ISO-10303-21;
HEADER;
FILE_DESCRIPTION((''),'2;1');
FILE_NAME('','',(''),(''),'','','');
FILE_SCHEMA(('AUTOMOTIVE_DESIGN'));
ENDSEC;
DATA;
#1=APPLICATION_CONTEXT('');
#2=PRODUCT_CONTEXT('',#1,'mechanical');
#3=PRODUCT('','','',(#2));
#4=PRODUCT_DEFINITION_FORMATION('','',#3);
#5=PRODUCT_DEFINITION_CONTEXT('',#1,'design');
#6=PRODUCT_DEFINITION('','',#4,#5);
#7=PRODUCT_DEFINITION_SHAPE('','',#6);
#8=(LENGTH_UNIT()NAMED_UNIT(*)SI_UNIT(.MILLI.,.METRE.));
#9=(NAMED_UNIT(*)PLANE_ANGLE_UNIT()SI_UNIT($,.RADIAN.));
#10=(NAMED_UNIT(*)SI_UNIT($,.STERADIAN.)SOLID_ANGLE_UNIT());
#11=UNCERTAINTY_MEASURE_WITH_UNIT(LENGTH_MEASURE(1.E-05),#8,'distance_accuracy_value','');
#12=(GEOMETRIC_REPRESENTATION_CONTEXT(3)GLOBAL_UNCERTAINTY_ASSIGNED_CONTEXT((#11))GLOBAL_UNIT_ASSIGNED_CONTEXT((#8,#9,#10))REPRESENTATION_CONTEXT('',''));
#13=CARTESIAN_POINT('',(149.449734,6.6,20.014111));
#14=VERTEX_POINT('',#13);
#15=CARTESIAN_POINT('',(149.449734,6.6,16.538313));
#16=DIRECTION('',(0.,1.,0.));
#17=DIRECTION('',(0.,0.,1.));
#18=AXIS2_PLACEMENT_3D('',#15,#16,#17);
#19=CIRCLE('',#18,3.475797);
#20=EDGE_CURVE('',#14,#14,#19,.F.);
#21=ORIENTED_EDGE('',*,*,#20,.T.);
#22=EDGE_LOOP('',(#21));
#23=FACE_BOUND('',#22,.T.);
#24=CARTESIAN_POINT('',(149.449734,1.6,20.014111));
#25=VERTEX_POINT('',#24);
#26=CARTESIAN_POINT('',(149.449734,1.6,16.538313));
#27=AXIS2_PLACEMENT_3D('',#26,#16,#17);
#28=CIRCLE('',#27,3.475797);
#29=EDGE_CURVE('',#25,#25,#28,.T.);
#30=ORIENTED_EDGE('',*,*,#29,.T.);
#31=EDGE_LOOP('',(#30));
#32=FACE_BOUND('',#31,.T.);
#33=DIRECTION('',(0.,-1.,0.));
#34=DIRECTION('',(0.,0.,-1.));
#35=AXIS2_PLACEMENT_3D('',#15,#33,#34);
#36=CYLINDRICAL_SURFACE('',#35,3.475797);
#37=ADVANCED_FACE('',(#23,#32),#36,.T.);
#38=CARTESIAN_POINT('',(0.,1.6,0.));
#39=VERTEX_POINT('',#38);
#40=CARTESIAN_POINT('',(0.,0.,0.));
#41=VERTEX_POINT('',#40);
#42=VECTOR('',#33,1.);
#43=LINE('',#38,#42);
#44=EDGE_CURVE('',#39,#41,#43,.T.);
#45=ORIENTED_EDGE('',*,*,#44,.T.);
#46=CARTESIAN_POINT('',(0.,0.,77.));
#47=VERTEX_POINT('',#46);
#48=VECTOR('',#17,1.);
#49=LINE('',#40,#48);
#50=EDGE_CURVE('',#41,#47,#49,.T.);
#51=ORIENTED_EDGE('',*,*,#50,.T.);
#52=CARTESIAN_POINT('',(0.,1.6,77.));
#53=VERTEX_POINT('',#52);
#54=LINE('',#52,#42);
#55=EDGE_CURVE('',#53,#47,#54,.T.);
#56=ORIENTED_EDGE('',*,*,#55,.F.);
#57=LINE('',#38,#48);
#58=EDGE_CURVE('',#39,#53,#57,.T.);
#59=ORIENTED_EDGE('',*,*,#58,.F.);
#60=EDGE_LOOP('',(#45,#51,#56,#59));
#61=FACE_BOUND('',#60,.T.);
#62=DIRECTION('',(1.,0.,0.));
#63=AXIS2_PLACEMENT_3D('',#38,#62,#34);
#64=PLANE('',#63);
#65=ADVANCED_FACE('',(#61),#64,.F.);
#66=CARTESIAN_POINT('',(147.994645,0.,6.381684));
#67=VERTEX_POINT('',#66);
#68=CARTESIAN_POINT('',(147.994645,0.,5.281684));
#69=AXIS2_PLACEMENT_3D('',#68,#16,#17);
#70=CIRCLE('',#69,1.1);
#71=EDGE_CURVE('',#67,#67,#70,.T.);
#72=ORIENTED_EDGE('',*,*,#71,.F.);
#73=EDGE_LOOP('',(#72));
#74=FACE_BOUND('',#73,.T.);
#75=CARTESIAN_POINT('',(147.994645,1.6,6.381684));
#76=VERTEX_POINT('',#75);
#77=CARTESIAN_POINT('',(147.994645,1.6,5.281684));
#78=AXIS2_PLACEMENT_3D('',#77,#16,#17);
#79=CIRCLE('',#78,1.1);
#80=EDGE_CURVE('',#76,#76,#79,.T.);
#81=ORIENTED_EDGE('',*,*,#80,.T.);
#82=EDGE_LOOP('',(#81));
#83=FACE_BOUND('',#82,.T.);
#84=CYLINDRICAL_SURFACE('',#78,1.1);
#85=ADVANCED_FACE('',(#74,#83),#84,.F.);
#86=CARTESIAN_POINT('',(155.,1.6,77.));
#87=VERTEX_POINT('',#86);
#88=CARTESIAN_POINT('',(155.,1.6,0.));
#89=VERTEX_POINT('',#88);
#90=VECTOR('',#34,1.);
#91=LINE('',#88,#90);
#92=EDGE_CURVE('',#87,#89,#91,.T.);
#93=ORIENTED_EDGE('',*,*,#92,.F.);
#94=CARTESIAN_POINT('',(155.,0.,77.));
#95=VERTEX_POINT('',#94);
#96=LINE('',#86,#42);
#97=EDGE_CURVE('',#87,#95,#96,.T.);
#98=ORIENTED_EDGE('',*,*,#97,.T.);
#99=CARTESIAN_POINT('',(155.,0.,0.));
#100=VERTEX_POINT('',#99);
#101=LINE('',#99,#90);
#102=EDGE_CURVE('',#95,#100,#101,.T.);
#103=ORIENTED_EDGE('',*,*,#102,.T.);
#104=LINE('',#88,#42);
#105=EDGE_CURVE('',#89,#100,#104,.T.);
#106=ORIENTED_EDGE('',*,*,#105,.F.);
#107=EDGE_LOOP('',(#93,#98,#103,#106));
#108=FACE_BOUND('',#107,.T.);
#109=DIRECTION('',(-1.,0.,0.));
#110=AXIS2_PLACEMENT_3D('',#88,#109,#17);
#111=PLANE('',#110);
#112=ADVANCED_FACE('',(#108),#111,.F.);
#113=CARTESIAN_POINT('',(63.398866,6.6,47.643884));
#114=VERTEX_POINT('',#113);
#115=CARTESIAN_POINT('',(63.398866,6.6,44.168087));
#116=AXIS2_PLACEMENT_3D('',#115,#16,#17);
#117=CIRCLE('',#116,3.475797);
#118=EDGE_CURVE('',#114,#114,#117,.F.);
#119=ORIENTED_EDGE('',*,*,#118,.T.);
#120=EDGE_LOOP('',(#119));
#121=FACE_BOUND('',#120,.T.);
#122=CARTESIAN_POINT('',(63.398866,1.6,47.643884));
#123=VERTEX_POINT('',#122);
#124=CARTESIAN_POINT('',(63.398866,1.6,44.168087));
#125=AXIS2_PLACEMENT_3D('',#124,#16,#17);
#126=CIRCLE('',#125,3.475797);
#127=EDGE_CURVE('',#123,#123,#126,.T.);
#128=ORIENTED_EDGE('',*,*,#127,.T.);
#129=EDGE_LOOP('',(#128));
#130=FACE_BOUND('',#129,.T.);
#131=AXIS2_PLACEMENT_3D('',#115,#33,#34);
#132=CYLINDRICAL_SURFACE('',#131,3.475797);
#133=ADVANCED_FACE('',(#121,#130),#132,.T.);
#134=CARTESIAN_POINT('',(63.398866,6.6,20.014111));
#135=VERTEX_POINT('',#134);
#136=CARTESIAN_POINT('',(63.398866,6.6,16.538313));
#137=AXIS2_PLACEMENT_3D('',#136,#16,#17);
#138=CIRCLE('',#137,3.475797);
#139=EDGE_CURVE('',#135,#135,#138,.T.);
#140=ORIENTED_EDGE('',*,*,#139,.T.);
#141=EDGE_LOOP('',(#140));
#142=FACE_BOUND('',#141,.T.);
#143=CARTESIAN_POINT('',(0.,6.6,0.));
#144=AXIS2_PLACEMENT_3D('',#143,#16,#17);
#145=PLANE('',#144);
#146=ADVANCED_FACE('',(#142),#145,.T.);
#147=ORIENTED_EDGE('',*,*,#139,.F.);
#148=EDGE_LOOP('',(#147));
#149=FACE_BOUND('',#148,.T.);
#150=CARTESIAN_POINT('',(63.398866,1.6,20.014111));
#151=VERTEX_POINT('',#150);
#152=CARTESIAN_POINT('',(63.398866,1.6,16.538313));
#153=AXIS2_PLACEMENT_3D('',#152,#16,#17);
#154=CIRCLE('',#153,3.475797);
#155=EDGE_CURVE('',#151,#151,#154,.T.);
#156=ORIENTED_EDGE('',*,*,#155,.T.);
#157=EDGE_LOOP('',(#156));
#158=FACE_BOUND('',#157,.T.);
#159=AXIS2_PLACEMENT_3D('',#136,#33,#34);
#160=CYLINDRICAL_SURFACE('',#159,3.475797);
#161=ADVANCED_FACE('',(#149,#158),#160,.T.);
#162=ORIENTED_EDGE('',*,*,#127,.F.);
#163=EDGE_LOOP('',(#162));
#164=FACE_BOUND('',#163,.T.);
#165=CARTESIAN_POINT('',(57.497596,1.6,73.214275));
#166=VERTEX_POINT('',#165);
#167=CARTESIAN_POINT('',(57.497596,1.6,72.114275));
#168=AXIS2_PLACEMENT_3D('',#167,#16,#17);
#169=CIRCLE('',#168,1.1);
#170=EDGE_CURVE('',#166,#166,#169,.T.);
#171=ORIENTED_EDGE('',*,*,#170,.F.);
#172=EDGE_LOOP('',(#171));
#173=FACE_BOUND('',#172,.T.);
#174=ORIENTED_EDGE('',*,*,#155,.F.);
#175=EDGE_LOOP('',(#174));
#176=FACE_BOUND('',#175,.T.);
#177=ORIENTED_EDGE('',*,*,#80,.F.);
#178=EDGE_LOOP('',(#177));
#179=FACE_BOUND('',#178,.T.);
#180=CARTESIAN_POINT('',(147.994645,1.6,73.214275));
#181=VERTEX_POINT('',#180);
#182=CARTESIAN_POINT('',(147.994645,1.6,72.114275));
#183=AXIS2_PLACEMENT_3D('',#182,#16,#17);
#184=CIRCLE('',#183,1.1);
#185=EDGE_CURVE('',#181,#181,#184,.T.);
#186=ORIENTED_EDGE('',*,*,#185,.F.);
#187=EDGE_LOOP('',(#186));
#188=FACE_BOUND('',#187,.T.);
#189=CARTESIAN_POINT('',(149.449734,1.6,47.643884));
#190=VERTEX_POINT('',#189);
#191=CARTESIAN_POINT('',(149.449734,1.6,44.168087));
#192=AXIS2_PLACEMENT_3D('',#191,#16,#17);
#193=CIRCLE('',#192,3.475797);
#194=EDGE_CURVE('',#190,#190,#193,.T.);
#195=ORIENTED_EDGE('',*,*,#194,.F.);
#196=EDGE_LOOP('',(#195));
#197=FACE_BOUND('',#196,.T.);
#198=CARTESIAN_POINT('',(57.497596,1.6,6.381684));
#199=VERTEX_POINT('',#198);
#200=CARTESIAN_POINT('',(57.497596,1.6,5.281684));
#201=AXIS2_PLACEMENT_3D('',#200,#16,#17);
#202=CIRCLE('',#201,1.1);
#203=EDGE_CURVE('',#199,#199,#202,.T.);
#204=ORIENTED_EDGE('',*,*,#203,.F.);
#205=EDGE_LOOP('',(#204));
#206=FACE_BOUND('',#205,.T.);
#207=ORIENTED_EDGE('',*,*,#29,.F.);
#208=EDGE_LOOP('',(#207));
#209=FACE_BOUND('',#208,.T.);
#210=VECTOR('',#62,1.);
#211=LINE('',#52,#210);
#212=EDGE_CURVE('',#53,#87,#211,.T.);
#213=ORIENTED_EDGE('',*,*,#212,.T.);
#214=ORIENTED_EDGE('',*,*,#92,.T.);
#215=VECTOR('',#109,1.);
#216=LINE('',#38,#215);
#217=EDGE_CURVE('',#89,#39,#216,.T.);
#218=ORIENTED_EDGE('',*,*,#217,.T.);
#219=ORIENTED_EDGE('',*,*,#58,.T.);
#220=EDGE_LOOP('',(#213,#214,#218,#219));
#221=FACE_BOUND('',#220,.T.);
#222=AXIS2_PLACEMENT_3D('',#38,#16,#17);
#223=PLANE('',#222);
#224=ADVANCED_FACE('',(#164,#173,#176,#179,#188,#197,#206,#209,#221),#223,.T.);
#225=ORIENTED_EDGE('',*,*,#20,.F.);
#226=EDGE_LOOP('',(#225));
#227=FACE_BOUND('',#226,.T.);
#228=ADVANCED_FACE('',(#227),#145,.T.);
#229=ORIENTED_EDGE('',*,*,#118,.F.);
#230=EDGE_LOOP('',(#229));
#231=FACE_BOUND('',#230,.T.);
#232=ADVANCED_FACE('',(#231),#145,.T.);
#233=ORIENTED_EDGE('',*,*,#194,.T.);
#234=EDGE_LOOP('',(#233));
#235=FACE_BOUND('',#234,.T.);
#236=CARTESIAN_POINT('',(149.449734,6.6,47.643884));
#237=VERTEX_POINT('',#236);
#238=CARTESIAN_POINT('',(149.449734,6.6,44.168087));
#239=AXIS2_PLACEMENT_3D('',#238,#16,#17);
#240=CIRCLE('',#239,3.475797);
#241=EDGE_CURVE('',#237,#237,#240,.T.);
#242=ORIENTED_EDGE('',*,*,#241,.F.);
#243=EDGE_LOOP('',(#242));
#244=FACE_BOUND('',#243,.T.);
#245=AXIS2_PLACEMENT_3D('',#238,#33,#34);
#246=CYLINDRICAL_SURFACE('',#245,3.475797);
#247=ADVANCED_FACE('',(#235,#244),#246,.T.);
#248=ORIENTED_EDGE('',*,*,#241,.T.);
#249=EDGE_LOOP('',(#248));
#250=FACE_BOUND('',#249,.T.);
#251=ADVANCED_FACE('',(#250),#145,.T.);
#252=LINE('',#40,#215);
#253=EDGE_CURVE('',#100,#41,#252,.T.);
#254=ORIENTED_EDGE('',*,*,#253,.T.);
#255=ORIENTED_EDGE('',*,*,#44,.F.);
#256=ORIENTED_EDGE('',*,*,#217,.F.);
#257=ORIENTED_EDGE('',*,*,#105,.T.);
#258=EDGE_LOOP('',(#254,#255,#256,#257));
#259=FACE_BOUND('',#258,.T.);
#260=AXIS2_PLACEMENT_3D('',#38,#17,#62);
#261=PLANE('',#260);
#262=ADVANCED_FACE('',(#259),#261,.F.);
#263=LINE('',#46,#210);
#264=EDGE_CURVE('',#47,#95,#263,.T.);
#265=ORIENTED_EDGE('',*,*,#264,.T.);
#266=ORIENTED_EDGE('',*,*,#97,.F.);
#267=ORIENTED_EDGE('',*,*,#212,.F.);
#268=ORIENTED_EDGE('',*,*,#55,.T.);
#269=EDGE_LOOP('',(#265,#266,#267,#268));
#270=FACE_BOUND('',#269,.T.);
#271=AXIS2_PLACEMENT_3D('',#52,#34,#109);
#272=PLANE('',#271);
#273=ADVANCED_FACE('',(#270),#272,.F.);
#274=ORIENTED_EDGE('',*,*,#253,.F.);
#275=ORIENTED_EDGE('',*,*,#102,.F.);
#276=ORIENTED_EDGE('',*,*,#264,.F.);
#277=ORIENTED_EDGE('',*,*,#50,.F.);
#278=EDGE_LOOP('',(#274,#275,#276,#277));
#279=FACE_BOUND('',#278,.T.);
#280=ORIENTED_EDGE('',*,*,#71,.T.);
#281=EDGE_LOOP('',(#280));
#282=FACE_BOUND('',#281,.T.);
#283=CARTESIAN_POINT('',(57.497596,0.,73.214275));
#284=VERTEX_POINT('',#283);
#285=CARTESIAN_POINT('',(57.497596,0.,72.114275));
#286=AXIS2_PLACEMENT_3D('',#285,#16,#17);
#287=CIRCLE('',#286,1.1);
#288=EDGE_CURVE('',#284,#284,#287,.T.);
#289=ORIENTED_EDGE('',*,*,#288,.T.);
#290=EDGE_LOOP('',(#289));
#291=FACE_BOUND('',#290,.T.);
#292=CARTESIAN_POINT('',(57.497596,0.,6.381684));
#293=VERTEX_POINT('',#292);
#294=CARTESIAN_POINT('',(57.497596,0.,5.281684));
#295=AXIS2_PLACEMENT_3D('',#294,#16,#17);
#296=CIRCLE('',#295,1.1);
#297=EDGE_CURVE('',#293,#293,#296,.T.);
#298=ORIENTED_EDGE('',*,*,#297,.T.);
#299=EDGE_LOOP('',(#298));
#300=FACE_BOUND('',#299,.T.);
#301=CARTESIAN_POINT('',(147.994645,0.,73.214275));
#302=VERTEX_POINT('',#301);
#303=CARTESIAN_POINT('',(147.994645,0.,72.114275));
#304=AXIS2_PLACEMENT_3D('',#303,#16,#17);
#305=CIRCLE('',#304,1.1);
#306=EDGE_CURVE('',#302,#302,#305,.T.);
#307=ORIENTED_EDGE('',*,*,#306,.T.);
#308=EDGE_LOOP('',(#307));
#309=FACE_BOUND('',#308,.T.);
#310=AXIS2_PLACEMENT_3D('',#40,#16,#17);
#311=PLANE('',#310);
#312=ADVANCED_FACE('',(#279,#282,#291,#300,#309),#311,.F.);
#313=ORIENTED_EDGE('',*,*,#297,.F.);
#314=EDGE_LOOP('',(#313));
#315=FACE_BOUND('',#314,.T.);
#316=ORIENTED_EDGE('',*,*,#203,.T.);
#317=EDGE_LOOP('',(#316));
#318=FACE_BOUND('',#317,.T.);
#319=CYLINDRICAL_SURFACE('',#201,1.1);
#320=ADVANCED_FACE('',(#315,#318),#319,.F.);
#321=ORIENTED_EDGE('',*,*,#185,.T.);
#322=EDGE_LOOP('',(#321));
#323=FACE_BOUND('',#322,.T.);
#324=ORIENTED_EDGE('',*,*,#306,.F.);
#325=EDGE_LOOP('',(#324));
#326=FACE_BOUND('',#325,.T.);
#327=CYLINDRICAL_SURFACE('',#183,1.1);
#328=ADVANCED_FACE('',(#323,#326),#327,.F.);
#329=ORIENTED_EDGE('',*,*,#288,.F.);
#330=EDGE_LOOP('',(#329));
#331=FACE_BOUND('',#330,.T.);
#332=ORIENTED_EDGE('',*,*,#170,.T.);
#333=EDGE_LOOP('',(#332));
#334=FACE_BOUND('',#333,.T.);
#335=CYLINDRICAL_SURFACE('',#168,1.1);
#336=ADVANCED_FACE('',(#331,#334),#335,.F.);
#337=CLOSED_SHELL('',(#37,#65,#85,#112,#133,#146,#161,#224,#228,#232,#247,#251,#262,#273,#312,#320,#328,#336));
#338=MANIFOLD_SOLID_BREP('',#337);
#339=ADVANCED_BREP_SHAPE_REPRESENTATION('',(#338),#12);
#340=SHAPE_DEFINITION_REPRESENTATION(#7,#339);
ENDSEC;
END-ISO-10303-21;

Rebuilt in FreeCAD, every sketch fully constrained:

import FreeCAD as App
import Part
import Sketcher

doc = App.newDocument("Part")
body = doc.addObject("PartDesign::Body", "Body")

# Sketch on XZ plane
sketch1 = body.newObject("Sketcher::SketchObject", "Sketch")
sketch1.AttachmentSupport = (doc.getObject("XZ_Plane"), [""])
sketch1.MapMode = "FlatFace"
sketch1.addGeometry([
    Part.LineSegment(App.Vector(0, 0, 0), App.Vector(0, 77, 0)),
    Part.LineSegment(App.Vector(0, 77, 0), App.Vector(155, 77, 0)),
    Part.LineSegment(App.Vector(155, 77, 0), App.Vector(155, 0, 0)),
    Part.LineSegment(App.Vector(155, 0, 0), App.Vector(0, 0, 0)),
], False)
sketch1.addConstraint([
    Sketcher.Constraint("Coincident", 0, 2, 1, 1),
    Sketcher.Constraint("Coincident", 1, 2, 2, 1),
    Sketcher.Constraint("Coincident", 2, 2, 3, 1),
    Sketcher.Constraint("Coincident", 3, 2, 0, 1),
    Sketcher.Constraint("Vertical", 0),
    Sketcher.Constraint("Horizontal", 1),
    Sketcher.Constraint("Vertical", 2),
    Sketcher.Constraint("Horizontal", 3),
    Sketcher.Constraint("Coincident", 3, 2, -1, 1),
    Sketcher.Constraint("DistanceX", 1, 1, 1, 2, 155.0),
    Sketcher.Constraint("DistanceY", 0, 1, 0, 2, 77.0),
])
pad1 = body.newObject("PartDesign::Pad", "Pad")
pad1.Profile = sketch1
pad1.Length = 1.6
pad1.Reversed = True

# Sketch on XZ plane
sketch2 = body.newObject("Sketcher::SketchObject", "Sketch001")
sketch2.AttachmentSupport = (doc.getObject("XZ_Plane"), [""])
sketch2.MapMode = "FlatFace"
sketch2.AttachmentOffset = App.Placement(App.Vector(0, 0, -1.6), App.Rotation())
sketch2.addGeometry([
    Part.Circle(App.Vector(63.4, 16.5, 0), App.Vector(0, 0, 1), 3.5),
    Part.Circle(App.Vector(63.4, 44.2, 0), App.Vector(0, 0, 1), 3.5),
    Part.Circle(App.Vector(149.4, 16.5, 0), App.Vector(0, 0, 1), 3.5),
    Part.Circle(App.Vector(149.4, 44.2, 0), App.Vector(0, 0, 1), 3.5),
], False)
sketch2.addConstraint([
    Sketcher.Constraint("Equal", 0, 1),
    Sketcher.Constraint("Equal", 1, 2),
    Sketcher.Constraint("Equal", 2, 3),
    Sketcher.Constraint("Horizontal", 0, 3, 2, 3),
    Sketcher.Constraint("Horizontal", 1, 3, 3, 3),
    Sketcher.Constraint("Vertical", 0, 3, 1, 3),
    Sketcher.Constraint("Vertical", 2, 3, 3, 3),
    Sketcher.Constraint("Diameter", 0, 6.951595),
    Sketcher.Constraint("DistanceX", 0, 3, 2, 3, 86.050869),
    Sketcher.Constraint("DistanceX", -1, 1, 0, 3, 63.398866),
    Sketcher.Constraint("DistanceY", -1, 1, 0, 3, 16.538313),
    Sketcher.Constraint("DistanceY", -1, 1, 1, 3, 44.168087),
])
pad2 = body.newObject("PartDesign::Pad", "Pad001")
pad2.Profile = sketch2
pad2.Length = 5
pad2.Reversed = True

# Sketch on XZ plane
sketch3 = body.newObject("Sketcher::SketchObject", "Sketch002")
sketch3.AttachmentSupport = (doc.getObject("XZ_Plane"), [""])
sketch3.MapMode = "FlatFace"
sketch3.AttachmentOffset = App.Placement(App.Vector(0, 0, -1.6), App.Rotation())
sketch3.addGeometry([
    Part.Circle(App.Vector(148, 5.3, 0), App.Vector(0, 0, 1), 1.1),
    Part.Circle(App.Vector(148, 72.1, 0), App.Vector(0, 0, 1), 1.1),
    Part.Circle(App.Vector(57.5, 72.1, 0), App.Vector(0, 0, 1), 1.1),
    Part.Circle(App.Vector(57.5, 5.3, 0), App.Vector(0, 0, 1), 1.1),
], False)
sketch3.addConstraint([
    Sketcher.Constraint("Equal", 0, 1),
    Sketcher.Constraint("Equal", 1, 2),
    Sketcher.Constraint("Equal", 2, 3),
    Sketcher.Constraint("Horizontal", 1, 3, 2, 3),
    Sketcher.Constraint("Horizontal", 0, 3, 3, 3),
    Sketcher.Constraint("Vertical", 0, 3, 1, 3),
    Sketcher.Constraint("Vertical", 2, 3, 3, 3),
    Sketcher.Constraint("Diameter", 0, 2.2),
    Sketcher.Constraint("DistanceY", 0, 3, 1, 3, 66.83259),
    Sketcher.Constraint("DistanceX", 2, 3, 1, 3, 90.497048),
    Sketcher.Constraint("DistanceX", -1, 1, 0, 3, 147.994645),
    Sketcher.Constraint("DistanceY", -1, 1, 0, 3, 5.281684),
])
doc.recompute()
hole = body.newObject("PartDesign::Hole", "Hole")
hole.Profile = sketch3
hole.ThreadType = "None"
hole.Diameter = 2.2
hole.DepthType = "ThroughAll"
hole.Reversed = True

doc.recompute()
